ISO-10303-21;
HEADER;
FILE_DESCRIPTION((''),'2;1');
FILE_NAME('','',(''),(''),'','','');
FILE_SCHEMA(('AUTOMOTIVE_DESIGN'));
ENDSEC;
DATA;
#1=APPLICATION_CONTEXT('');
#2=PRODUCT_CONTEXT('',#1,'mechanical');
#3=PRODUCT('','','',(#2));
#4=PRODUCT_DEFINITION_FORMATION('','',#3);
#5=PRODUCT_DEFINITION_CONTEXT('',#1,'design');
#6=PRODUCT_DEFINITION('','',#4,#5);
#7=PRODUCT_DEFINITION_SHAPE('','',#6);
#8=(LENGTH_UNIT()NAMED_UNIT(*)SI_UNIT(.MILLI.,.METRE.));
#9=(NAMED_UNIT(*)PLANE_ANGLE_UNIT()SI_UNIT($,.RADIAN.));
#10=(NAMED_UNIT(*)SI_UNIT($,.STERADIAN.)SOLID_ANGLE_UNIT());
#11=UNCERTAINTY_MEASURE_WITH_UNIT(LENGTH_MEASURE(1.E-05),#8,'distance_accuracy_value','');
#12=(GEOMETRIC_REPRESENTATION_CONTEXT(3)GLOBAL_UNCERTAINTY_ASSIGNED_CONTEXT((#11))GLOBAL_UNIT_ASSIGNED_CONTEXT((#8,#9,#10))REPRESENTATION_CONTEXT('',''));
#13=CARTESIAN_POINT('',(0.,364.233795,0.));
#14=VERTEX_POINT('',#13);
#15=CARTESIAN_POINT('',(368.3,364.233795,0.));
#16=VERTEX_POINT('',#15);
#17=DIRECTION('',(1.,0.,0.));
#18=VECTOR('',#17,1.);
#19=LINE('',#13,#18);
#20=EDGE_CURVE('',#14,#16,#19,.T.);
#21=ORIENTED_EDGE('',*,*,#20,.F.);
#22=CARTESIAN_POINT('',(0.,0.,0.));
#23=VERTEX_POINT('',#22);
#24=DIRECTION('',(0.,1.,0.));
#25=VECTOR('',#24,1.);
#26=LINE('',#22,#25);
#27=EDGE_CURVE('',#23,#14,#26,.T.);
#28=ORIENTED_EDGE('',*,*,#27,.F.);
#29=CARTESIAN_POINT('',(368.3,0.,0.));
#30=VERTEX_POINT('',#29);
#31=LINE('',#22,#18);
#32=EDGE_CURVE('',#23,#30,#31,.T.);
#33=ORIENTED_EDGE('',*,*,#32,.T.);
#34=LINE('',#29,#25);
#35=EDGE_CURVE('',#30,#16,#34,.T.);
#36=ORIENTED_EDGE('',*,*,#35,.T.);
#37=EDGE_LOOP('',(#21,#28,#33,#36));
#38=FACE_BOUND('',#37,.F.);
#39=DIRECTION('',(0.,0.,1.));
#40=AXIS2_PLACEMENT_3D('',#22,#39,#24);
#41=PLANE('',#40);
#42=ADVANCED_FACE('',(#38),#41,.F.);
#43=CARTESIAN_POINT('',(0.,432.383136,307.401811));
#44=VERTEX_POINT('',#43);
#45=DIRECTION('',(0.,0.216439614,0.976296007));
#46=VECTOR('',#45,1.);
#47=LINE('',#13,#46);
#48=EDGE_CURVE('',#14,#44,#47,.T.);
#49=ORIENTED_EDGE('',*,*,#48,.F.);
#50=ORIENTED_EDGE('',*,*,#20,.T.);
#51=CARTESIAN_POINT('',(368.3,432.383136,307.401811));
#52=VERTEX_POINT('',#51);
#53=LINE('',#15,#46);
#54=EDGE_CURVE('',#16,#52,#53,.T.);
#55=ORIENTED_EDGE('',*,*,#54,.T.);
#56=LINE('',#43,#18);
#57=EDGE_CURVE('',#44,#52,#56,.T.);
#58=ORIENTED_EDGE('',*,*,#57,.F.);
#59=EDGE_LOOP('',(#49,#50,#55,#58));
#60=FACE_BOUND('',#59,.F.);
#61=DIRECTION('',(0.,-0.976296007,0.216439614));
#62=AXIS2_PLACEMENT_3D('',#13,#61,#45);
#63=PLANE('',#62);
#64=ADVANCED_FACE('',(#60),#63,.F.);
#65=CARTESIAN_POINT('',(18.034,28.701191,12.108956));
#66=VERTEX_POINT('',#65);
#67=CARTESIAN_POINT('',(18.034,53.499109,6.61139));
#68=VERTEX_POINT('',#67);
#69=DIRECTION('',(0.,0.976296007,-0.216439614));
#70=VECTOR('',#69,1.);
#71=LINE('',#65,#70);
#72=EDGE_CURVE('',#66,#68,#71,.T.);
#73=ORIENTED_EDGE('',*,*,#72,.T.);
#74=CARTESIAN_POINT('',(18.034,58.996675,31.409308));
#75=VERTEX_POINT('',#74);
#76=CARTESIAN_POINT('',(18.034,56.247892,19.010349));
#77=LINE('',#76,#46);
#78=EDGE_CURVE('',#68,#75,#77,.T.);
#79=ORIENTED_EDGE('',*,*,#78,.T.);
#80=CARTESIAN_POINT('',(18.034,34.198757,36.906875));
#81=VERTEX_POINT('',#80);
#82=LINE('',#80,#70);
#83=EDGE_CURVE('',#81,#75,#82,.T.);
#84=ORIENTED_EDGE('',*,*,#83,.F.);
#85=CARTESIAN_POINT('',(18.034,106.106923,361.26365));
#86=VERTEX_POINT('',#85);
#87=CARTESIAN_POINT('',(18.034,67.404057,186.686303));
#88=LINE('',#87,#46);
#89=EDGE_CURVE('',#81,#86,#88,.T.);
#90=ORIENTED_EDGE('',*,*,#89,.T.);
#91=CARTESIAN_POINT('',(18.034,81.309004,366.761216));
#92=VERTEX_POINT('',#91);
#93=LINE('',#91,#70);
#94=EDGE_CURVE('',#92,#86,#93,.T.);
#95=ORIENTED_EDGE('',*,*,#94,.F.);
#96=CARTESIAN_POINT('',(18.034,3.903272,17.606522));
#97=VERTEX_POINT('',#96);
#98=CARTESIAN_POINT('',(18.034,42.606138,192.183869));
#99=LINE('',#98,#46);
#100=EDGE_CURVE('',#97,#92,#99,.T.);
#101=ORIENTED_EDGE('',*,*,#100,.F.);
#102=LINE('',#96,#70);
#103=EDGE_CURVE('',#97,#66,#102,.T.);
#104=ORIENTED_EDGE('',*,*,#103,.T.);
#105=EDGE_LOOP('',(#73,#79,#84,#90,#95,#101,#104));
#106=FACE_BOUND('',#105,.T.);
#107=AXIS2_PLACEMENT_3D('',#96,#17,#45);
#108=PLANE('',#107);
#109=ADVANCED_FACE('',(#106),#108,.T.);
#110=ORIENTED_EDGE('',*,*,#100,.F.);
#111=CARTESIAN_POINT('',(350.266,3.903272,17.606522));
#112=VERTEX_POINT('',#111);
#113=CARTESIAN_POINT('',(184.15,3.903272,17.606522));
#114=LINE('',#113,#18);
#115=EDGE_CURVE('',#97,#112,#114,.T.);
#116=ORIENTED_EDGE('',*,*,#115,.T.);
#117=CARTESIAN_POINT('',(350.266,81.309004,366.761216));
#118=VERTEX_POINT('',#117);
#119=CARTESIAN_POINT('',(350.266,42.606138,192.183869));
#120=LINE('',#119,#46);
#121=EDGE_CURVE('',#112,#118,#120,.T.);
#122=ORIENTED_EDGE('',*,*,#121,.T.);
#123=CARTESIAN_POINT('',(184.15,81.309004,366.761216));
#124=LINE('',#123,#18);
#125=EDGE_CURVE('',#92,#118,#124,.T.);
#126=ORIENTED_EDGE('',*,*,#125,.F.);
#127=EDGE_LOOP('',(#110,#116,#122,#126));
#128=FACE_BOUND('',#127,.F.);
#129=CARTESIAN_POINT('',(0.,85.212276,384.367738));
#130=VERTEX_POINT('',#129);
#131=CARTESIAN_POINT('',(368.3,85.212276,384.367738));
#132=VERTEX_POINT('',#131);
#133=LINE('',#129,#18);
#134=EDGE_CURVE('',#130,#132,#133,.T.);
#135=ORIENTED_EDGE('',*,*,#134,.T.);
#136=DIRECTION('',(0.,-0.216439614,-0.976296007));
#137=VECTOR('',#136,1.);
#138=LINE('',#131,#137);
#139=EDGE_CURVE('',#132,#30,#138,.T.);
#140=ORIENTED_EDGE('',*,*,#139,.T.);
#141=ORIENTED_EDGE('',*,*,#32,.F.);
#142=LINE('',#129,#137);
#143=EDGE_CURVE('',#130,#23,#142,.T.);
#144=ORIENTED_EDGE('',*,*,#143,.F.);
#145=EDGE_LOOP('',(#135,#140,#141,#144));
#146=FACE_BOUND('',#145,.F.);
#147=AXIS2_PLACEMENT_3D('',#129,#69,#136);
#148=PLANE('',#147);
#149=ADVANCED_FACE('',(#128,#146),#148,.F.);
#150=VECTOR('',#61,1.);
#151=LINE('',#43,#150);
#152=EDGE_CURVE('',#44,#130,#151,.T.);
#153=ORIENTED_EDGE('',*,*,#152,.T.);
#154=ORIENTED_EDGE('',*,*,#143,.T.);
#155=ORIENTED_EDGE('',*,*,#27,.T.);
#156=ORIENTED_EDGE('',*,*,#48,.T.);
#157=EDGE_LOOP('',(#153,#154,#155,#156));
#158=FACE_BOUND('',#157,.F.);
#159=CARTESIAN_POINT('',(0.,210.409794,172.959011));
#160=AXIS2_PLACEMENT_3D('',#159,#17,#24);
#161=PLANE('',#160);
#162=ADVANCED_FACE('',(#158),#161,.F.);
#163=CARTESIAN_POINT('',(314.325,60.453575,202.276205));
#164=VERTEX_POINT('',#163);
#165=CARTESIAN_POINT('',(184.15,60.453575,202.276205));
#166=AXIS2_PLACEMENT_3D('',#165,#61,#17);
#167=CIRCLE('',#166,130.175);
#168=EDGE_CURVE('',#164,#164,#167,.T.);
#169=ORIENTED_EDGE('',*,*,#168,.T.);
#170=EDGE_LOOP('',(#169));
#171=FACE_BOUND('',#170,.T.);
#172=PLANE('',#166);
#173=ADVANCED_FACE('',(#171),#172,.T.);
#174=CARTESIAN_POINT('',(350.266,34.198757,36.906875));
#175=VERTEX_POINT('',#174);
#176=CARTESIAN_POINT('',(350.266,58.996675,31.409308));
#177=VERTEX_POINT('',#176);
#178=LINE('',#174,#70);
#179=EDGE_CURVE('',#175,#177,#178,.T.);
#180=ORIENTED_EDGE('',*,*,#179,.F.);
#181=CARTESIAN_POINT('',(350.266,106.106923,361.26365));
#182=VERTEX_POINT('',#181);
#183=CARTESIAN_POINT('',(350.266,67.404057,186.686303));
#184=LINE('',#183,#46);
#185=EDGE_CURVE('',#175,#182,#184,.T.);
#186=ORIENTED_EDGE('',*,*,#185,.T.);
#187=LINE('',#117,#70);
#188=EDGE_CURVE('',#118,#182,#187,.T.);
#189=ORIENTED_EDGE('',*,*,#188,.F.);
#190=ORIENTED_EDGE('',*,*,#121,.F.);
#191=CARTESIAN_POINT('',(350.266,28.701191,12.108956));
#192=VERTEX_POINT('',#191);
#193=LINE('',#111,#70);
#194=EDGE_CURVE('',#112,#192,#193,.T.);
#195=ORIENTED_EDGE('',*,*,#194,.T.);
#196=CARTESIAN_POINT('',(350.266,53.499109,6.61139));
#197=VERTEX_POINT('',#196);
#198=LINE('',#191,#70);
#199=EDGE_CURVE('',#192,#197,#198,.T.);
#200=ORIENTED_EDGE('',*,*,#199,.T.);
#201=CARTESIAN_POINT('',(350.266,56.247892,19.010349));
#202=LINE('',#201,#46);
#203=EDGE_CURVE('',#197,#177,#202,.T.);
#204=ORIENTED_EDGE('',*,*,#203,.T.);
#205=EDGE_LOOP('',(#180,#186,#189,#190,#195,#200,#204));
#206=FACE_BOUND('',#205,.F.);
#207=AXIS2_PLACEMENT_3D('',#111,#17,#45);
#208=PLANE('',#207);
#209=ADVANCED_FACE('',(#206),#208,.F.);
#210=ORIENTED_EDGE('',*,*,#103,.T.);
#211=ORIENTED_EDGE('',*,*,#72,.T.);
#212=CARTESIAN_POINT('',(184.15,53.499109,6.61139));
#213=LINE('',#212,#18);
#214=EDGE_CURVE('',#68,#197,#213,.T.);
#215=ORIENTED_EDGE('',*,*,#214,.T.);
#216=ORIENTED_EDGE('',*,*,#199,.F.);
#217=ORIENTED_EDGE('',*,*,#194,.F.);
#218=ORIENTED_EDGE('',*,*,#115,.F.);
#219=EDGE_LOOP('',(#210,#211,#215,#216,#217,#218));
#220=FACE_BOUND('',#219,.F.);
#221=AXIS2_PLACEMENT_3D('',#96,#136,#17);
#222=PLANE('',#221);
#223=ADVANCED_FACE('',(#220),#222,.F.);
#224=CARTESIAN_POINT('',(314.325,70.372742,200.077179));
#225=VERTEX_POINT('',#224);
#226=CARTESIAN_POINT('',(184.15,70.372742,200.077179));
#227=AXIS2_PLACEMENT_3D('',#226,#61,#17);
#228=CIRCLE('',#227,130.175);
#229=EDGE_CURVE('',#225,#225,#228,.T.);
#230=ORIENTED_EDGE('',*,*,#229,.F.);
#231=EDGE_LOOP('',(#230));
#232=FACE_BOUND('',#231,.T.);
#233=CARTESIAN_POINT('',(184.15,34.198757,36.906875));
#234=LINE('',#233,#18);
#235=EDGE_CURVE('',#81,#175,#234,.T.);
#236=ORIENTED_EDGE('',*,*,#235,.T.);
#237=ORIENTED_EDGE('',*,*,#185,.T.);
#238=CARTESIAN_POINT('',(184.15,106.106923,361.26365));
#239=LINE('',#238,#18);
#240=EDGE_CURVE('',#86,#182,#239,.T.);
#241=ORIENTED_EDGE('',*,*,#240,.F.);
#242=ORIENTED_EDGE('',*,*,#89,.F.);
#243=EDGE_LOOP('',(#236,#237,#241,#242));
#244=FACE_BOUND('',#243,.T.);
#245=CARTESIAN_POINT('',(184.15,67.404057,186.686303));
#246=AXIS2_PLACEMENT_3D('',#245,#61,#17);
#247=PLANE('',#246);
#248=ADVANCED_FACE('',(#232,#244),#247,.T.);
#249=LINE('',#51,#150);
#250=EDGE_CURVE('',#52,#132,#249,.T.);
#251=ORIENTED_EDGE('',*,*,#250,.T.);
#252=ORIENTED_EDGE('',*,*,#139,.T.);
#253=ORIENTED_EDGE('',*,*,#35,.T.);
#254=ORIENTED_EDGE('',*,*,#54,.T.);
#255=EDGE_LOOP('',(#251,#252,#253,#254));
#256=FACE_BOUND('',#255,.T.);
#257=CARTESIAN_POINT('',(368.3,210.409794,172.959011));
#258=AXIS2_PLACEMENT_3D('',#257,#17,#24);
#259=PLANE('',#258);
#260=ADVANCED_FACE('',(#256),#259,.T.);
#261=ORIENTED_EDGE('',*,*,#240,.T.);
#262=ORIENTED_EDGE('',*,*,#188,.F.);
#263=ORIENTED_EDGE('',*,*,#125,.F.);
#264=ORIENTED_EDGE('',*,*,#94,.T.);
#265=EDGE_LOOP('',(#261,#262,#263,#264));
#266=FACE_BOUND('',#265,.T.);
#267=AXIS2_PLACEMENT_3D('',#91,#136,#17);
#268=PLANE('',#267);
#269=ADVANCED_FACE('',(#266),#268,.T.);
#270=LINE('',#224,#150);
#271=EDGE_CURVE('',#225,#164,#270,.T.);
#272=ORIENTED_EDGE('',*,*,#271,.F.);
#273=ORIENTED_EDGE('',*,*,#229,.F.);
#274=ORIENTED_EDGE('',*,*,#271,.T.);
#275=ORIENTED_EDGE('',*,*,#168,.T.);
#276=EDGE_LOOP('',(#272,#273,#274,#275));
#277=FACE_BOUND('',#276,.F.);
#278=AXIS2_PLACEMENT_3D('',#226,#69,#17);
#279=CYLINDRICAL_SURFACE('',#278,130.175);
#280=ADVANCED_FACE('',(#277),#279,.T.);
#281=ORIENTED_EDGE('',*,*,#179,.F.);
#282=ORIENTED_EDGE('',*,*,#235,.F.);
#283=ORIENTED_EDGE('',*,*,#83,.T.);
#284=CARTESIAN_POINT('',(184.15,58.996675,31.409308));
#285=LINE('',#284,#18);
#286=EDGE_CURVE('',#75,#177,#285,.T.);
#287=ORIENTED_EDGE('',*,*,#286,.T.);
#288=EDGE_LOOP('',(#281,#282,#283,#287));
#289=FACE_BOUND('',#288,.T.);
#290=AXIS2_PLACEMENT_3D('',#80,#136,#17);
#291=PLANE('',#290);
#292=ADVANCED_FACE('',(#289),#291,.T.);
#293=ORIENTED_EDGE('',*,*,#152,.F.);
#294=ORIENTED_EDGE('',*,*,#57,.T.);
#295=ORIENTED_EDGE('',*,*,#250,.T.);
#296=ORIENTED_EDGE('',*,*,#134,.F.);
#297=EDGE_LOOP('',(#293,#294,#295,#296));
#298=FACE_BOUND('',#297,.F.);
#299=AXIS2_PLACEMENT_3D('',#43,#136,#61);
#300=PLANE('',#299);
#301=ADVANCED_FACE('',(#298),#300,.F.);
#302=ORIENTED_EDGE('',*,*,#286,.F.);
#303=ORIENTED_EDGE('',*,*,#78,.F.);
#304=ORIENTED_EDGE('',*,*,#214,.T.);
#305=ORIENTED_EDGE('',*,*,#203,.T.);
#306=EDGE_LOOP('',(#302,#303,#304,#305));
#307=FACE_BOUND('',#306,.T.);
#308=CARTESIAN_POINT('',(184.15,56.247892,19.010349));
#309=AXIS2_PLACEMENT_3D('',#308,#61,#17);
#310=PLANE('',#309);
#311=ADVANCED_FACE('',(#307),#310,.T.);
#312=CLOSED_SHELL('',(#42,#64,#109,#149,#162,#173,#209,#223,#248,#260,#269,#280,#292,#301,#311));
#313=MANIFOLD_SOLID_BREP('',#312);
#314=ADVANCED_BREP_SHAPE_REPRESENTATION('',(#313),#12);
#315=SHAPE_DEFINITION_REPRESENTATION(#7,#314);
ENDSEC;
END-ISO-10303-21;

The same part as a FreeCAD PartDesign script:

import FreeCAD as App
import Part
import Sketcher
from FreeCAD import Vector
Q = App.Units.Quantity

doc = App.newDocument("Part")
body = doc.addObject("PartDesign::Body", "Body")

# Sketch on YZ plane
sketch1 = body.newObject("Sketcher::SketchObject", "Sketch")
sketch1.AttachmentSupport = (doc.getObject("YZ_Plane"), [""])
sketch1.MapMode = "FlatFace"
sketch1.addGeometry([
    Part.LineSegment(Vector(85.212276, 384.367738, 0), Vector(0, 0, 0)),
    Part.LineSegment(Vector(0, 0, 0), Vector(364.233795, 0, 0)),
    Part.LineSegment(Vector(364.233795, 0, 0), Vector(432.383136, 307.401811, 0)),
    Part.LineSegment(Vector(432.383136, 307.401811, 0), Vector(85.212276, 384.367738, 0)),
], False)
sketch1.addConstraint([
    Sketcher.Constraint("Coincident", 0, 2, 1, 1),
    Sketcher.Constraint("Coincident", 1, 2, 2, 1),
    Sketcher.Constraint("Coincident", 2, 2, 3, 1),
    Sketcher.Constraint("Coincident", 3, 2, 0, 1),
    Sketcher.Constraint("Horizontal", 1),
    Sketcher.Constraint("Coincident", 0, 2, -1, 1),
    Sketcher.Constraint("Parallel", 0, 2),
    Sketcher.Constraint("Perpendicular", 2, 3),
    Sketcher.Constraint("Distance", 3, Q("14 in")),
    Sketcher.Constraint("Distance", 0, Q("15.5 in")),
    Sketcher.Constraint("Angle", 0, Q("-102.5 deg")),
])
pad1 = body.newObject("PartDesign::Pad", "Pad")
pad1.Profile = sketch1
pad1.Length = Q("14.5 in")

# Sketch on an angled plane
sketch2 = body.newObject("Sketcher::SketchObject", "Sketch001")
sketch2.Placement = App.Placement(Vector(0, 0, 0), App.Rotation(Vector(1, 0, 0), Vector(0, 0.216439614, 0.976296007), Vector(0, -0.976296007, 0.216439614), "ZXY"))
sketch2.addGeometry([
    Part.LineSegment(Vector(18.034, 375.666, 0), Vector(18.034, 18.034, 0)),
    Part.LineSegment(Vector(18.034, 18.034, 0), Vector(350.266, 18.034, 0)),
    Part.LineSegment(Vector(350.266, 18.034, 0), Vector(350.266, 375.666, 0)),
    Part.LineSegment(Vector(350.266, 375.666, 0), Vector(18.034, 375.666, 0)),
], False)
sketch2.addConstraint([
    Sketcher.Constraint("Coincident", 0, 2, 1, 1),
    Sketcher.Constraint("Coincident", 1, 2, 2, 1),
    Sketcher.Constraint("Coincident", 2, 2, 3, 1),
    Sketcher.Constraint("Coincident", 3, 2, 0, 1),
    Sketcher.Constraint("Vertical", 0),
    Sketcher.Constraint("Horizontal", 1),
    Sketcher.Constraint("Vertical", 2),
    Sketcher.Constraint("Horizontal", 3),
    Sketcher.Constraint("DistanceX", 1, 1, 1, 2, Q("13.08 in")),
    Sketcher.Constraint("DistanceY", 0, 2, 0, 1, Q("14.08 in")),
    Sketcher.Constraint("DistanceX", -1, 1, 0, 2, Q("0.71 in")),
    Sketcher.Constraint("DistanceY", -1, 1, 0, 2, Q("0.71 in")),
])
pocket1 = body.newObject("PartDesign::Pocket", "Pocket")
pocket1.Profile = sketch2
pocket1.Length = Q("1 in")

# Sketch on an angled plane
sketch3 = body.newObject("Sketcher::SketchObject", "Sketch002")
sketch3.Placement = App.Placement(Vector(0, 24.797919, -5.497566), App.Rotation(Vector(1, 0, 0), Vector(0, 0.216439614, 0.976296007), Vector(0, -0.976296007, 0.216439614), "ZXY"))
sketch3.addGeometry(Part.Circle(Vector(184.15, 210.566, 0), Vector(0, 0, 1), 130.175), False)
sketch3.addConstraint([
    Sketcher.Constraint("Diameter", 0, Q("10.25 in")),
    Sketcher.Constraint("DistanceX", -1, 1, 0, 3, Q("7.25 in")),
    Sketcher.Constraint("DistanceY", -1, 1, 0, 3, Q("8.29 in")),
])
pad2 = body.newObject("PartDesign::Pad", "Pad001")
pad2.Profile = sketch3
pad2.Length = Q("0.4 in")

# Sketch on an angled plane
sketch4 = body.newObject("Sketcher::SketchObject", "Sketch003")
sketch4.Placement = App.Placement(Vector(0, 24.797919, -5.497566), App.Rotation(Vector(1, 0, 0), Vector(0, 0.216439614, 0.976296007), Vector(0, -0.976296007, 0.216439614), "ZXY"))
sketch4.addGeometry([
    Part.LineSegment(Vector(18.034, 43.434, 0), Vector(18.034, 18.034, 0)),
    Part.LineSegment(Vector(18.034, 18.034, 0), Vector(350.266, 18.034, 0)),
    Part.LineSegment(Vector(350.266, 18.034, 0), Vector(350.266, 43.434, 0)),
    Part.LineSegment(Vector(350.266, 43.434, 0), Vector(18.034, 43.434, 0)),
], False)
sketch4.addConstraint([
    Sketcher.Constraint("Coincident", 0, 2, 1, 1),
    Sketcher.Constraint("Coincident", 1, 2, 2, 1),
    Sketcher.Constraint("Coincident", 2, 2, 3, 1),
    Sketcher.Constraint("Coincident", 3, 2, 0, 1),
    Sketcher.Constraint("Vertical", 0),
    Sketcher.Constraint("Horizontal", 1),
    Sketcher.Constraint("Vertical", 2),
    Sketcher.Constraint("Horizontal", 3),
    Sketcher.Constraint("DistanceY", 0, 2, 0, 1, Q("1 in")),
    Sketcher.Constraint("DistanceX", 1, 1, 1, 2, Q("13.08 in")),
    Sketcher.Constraint("DistanceX", -1, 1, 0, 2, Q("0.71 in")),
    Sketcher.Constraint("DistanceY", -1, 1, 0, 2, Q("0.71 in")),
])
pocket2 = body.newObject("PartDesign::Pocket", "Pocket001")
pocket2.Profile = sketch4
pocket2.Length = Q("1 in")

doc.recompute()
